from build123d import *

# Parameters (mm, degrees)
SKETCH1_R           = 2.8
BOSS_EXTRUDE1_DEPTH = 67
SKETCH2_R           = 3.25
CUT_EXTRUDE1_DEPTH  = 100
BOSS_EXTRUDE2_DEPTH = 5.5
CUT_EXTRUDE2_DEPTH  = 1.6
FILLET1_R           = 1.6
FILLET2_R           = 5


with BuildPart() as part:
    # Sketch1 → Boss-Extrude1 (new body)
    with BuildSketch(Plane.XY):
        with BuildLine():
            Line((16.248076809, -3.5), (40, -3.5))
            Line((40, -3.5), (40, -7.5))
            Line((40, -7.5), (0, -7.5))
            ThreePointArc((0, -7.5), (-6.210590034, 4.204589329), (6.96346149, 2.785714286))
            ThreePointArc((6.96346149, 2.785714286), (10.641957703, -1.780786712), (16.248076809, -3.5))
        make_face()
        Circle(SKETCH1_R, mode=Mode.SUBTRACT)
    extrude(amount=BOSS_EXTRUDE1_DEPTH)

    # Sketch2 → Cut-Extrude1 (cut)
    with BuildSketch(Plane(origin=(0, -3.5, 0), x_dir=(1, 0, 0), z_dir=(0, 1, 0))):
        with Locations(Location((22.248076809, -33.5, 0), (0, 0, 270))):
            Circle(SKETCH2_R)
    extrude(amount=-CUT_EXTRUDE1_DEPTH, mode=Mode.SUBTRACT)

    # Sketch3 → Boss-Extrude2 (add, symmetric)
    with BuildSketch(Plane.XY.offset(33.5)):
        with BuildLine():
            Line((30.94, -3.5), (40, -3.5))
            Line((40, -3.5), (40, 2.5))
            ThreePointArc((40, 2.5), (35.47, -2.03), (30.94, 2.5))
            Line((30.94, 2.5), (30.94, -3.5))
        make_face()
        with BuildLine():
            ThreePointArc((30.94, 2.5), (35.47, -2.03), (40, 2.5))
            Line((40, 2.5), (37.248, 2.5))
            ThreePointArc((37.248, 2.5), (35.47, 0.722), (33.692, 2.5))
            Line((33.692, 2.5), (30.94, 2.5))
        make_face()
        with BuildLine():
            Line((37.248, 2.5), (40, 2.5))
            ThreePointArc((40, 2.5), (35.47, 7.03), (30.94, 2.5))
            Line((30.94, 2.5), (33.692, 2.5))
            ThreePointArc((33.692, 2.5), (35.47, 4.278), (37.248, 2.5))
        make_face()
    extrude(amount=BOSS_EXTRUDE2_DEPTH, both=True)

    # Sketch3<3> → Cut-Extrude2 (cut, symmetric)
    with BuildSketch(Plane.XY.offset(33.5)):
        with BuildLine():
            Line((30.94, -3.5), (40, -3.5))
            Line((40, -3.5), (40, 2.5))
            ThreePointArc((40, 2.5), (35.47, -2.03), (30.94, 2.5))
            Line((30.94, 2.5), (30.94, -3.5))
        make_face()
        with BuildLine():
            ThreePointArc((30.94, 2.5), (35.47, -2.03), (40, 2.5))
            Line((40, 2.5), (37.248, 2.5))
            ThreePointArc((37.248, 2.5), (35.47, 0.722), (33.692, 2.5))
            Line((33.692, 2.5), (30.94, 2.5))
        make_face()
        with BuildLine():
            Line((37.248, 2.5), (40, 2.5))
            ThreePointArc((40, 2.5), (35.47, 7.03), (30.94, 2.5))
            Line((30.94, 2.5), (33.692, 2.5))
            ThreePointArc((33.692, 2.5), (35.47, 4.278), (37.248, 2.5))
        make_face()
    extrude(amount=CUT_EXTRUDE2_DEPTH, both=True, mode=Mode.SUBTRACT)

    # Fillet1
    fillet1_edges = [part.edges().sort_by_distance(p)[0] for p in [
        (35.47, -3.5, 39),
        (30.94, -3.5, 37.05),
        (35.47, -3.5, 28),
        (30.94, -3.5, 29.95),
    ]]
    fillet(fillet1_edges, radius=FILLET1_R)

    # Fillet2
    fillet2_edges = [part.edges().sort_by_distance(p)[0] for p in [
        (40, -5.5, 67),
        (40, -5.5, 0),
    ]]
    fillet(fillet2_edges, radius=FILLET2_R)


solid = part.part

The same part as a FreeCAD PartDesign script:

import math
import FreeCAD as App
import Part
import Sketcher


def edges_at(feature, points):
    """Names of the edges that pass closest to the given points."""
    edges = feature.Shape.Edges
    near = lambda p: min(range(len(edges)), key=lambda i: edges[i].distToShape(Part.Vertex(*p))[0])
    return sorted({f"Edge{near(p) + 1}" for p in points})

doc = App.newDocument("Part")
body = doc.addObject("PartDesign::Body", "Body")

sketch1 = body.newObject("Sketcher::SketchObject", "Sketch")
sketch1.AttachmentSupport = (doc.getObject("XY_Plane"), [""])
sketch1.MapMode = "FlatFace"
sketch1.addGeometry([
    Part.LineSegment(App.Vector(40, -3.5, 0), App.Vector(16.248077, -3.5, 0)),
    Part.ArcOfCircle(Part.Circle(App.Vector(16.248077, 6.5, 0), App.Vector(0, 0, 1), 10), math.radians(-158.196252), math.radians(-90)),
    Part.ArcOfCircle(Part.Circle(App.Vector(0, 0, 0), App.Vector(0, 0, 1), 7.5), math.radians(21.803748), math.radians(270)),
    Part.LineSegment(App.Vector(0, -7.5, 0), App.Vector(40, -7.5, 0)),
    Part.LineSegment(App.Vector(40, -7.5, 0), App.Vector(40, -3.5, 0)),
    Part.Circle(App.Vector(0, 0, 0), App.Vector(0, 0, 1), 2.8),
], False)
sketch1.addConstraint([
    Sketcher.Constraint("Tangent", 0, 2, 1, 2),
    Sketcher.Constraint("Tangent", 1, 1, 2, 1),
    Sketcher.Constraint("Tangent", 2, 2, 3, 1),
    Sketcher.Constraint("Coincident", 3, 2, 4, 1),
    Sketcher.Constraint("Coincident", 4, 2, 0, 1),
    Sketcher.Constraint("Horizontal", 0),
    Sketcher.Constraint("Horizontal", 3),
    Sketcher.Constraint("Vertical", 4),
    Sketcher.Constraint("Coincident", 2, 3, -1, 1),
    Sketcher.Constraint("Coincident", 5, 3, -1, 1),
    Sketcher.Constraint("Radius", 1, 10.0),
    Sketcher.Constraint("Diameter", 5, 5.6),
    Sketcher.Constraint("Radius", 2, 7.5),
    Sketcher.Constraint("DistanceX", 3, 1, 3, 2, 40.0),
    Sketcher.Constraint("DistanceY", 4, 1, 4, 2, 4.0),
])
pad1 = body.newObject("PartDesign::Pad", "Pad")
pad1.Profile = sketch1
pad1.Length = 67

sketch2 = body.newObject("Sketcher::SketchObject", "Sketch001")
sketch2.AttachmentSupport = (doc.getObject("XZ_Plane"), [""])
sketch2.MapMode = "FlatFace"
sketch2.AttachmentOffset = App.Placement(App.Vector(0, 0, 3.5), App.Rotation())
sketch2.addGeometry(Part.Circle(App.Vector(22.248077, 33.5, 0), App.Vector(0, 0, 1), 3.25), False)
sketch2.addConstraint([
    Sketcher.Constraint("Diameter", 0, 6.5),
    Sketcher.Constraint("DistanceY", -1, 1, 0, 3, 33.5),
    Sketcher.Constraint("DistanceX", -1, 1, 0, 3, 22.248077),
])
pocket1 = body.newObject("PartDesign::Pocket", "Pocket")
pocket1.Profile = sketch2
pocket1.Length = 100
pocket1.Reversed = True

sketch3 = body.newObject("Sketcher::SketchObject", "Sketch002")
sketch3.AttachmentSupport = (doc.getObject("XY_Plane"), [""])
sketch3.MapMode = "FlatFace"
sketch3.AttachmentOffset = App.Placement(App.Vector(0, 0, 33.5), App.Rotation())
sketch3.addGeometry([
    Part.LineSegment(App.Vector(40, -3.5, 0), App.Vector(40, 2.5, 0)),
    Part.ArcOfCircle(Part.Circle(App.Vector(35.47, 2.5, 0), App.Vector(0, 0, 1), 4.53), math.radians(0), math.radians(180)),
    Part.LineSegment(App.Vector(30.94, 2.5, 0), App.Vector(30.94, -3.5, 0)),
    Part.LineSegment(App.Vector(30.94, -3.5, 0), App.Vector(40, -3.5, 0)),
    Part.Circle(App.Vector(35.47, 2.5, 0), App.Vector(0, 0, 1), 1.778),
], False)
sketch3.addConstraint([
    Sketcher.Constraint("Tangent", 0, 2, 1, 1),
    Sketcher.Constraint("Tangent", 1, 2, 2, 1),
    Sketcher.Constraint("Coincident", 2, 2, 3, 1),
    Sketcher.Constraint("Coincident", 3, 2, 0, 1),
    Sketcher.Constraint("Vertical", 0),
    Sketcher.Constraint("Vertical", 2),
    Sketcher.Constraint("Horizontal", 3),
    Sketcher.Constraint("Coincident", 4, 3, 1, 3),
    Sketcher.Constraint("DistanceY", 0, 1, 0, 2, 6.0),
    Sketcher.Constraint("Radius", 1, 4.53),
    Sketcher.Constraint("Diameter", 4, 3.556),
    Sketcher.Constraint("DistanceX", -1, 1, 0, 2, 40.0),
    Sketcher.Constraint("DistanceY", -1, 1, 1, 3, 2.5),
])
pad2 = body.newObject("PartDesign::Pad", "Pad001")
pad2.Profile = sketch3
pad2.Length = 11
pad2.Midplane = True

sketch4 = body.newObject("Sketcher::SketchObject", "Sketch003")
sketch4.AttachmentSupport = (doc.getObject("XY_Plane"), [""])
sketch4.MapMode = "FlatFace"
sketch4.AttachmentOffset = App.Placement(App.Vector(0, 0, 33.5), App.Rotation())
sketch4.addGeometry([
    Part.LineSegment(App.Vector(40, -3.5, 0), App.Vector(40, 2.5, 0)),
    Part.ArcOfCircle(Part.Circle(App.Vector(35.47, 2.5, 0), App.Vector(0, 0, 1), 4.53), math.radians(0), math.radians(180)),
    Part.LineSegment(App.Vector(30.94, 2.5, 0), App.Vector(30.94, -3.5, 0)),
    Part.LineSegment(App.Vector(30.94, -3.5, 0), App.Vector(40, -3.5, 0)),
    Part.Circle(App.Vector(35.47, 2.5, 0), App.Vector(0, 0, 1), 1.778),
], False)
sketch4.addConstraint([
    Sketcher.Constraint("Tangent", 0, 2, 1, 1),
    Sketcher.Constraint("Tangent", 1, 2, 2, 1),
    Sketcher.Constraint("Coincident", 2, 2, 3, 1),
    Sketcher.Constraint("Coincident", 3, 2, 0, 1),
    Sketcher.Constraint("Vertical", 0),
    Sketcher.Constraint("Vertical", 2),
    Sketcher.Constraint("Horizontal", 3),
    Sketcher.Constraint("Coincident", 4, 3, 1, 3),
    Sketcher.Constraint("DistanceY", 0, 1, 0, 2, 6.0),
    Sketcher.Constraint("Radius", 1, 4.53),
    Sketcher.Constraint("Diameter", 4, 3.556),
    Sketcher.Constraint("DistanceX", -1, 1, 0, 2, 40.0),
    Sketcher.Constraint("DistanceY", -1, 1, 1, 3, 2.5),
])
pocket2 = body.newObject("PartDesign::Pocket", "Pocket001")
pocket2.Profile = sketch4
pocket2.Length = 3.2
pocket2.Midplane = True
doc.recompute()

fillet = body.newObject("PartDesign::Fillet", "Fillet")
fillet.Base = (pocket2, edges_at(pocket2, [
    (35.47, -3.5, 39),
    (30.94, -3.5, 37.05),
    (35.47, -3.5, 28),
    (30.94, -3.5, 29.95),
]))
fillet.Radius = 1.6
doc.recompute()

fillet2 = body.newObject("PartDesign::Fillet", "Fillet001")
fillet2.Base = (fillet, edges_at(fillet, [(40, -5.5, 67), (40, -5.5, 0)]))
fillet2.Radius = 5

doc.recompute()
